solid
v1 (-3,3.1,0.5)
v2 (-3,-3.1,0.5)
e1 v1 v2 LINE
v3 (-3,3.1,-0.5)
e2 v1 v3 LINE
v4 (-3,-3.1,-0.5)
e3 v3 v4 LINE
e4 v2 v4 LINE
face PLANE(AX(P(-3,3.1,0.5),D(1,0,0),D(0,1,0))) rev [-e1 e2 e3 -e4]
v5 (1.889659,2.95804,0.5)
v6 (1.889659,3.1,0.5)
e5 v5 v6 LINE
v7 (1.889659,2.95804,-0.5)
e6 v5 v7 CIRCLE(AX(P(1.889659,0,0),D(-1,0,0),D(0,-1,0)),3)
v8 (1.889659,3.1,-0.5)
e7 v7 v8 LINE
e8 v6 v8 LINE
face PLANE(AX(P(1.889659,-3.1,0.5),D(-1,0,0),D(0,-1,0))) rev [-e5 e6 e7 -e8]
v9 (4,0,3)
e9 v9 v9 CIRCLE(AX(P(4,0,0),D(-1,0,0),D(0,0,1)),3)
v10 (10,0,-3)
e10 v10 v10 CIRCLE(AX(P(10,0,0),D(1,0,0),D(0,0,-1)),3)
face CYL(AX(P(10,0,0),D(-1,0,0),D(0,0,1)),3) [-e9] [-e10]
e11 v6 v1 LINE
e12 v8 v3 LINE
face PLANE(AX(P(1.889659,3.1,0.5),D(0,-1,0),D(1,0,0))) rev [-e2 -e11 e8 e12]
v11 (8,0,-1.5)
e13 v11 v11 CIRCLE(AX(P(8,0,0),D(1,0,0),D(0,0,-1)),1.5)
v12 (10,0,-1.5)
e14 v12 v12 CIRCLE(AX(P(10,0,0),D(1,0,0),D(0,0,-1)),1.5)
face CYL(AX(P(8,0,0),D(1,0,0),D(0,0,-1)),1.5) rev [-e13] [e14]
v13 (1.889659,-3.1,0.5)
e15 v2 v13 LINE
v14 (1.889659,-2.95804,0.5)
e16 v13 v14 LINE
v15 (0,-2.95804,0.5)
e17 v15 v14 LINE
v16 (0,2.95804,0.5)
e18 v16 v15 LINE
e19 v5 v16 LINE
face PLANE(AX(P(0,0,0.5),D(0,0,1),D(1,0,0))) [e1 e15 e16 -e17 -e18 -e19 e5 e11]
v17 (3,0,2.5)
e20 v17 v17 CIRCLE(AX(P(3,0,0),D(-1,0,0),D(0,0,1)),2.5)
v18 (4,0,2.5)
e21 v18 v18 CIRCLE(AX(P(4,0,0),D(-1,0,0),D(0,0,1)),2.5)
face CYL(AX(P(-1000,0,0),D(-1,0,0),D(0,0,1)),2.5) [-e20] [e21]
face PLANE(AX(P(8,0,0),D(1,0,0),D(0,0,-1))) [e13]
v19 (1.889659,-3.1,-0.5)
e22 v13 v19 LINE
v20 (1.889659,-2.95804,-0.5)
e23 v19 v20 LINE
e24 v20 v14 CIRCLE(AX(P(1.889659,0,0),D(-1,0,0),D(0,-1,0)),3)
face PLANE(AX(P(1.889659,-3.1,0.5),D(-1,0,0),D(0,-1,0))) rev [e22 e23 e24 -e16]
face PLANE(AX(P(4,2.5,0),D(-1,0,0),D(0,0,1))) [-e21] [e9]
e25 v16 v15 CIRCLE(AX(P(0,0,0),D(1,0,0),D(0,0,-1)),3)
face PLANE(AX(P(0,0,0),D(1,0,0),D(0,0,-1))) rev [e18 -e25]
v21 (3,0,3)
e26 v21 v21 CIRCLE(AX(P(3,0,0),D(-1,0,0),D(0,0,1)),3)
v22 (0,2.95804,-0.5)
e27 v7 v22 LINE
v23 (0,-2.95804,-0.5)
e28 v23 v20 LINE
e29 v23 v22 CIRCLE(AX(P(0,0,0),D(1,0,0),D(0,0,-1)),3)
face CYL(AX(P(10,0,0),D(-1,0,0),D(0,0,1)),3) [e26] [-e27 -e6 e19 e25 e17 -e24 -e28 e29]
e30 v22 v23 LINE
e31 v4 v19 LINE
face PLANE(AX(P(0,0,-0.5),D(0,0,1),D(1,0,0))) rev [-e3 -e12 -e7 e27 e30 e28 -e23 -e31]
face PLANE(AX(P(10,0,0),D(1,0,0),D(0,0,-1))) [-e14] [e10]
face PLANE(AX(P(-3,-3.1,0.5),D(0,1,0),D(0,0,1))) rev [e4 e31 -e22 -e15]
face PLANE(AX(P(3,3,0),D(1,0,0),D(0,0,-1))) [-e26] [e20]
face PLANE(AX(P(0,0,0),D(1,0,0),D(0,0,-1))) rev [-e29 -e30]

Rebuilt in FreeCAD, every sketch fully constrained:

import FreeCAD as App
import Part
import Sketcher


def add_polygon(sketch, points):
    """Adds a closed chain of lines whose ends are joined by coincident constraints."""
    first, n = sketch.GeometryCount, len(points)
    for a, b in zip(points, points[1:] + points[:1]):
        sketch.addGeometry(Part.LineSegment(App.Vector(*a, 0), App.Vector(*b, 0)), False)
    for i in range(n):
        sketch.addConstraint(Sketcher.Constraint("Coincident", first + i, 2, first + (i + 1) % n, 1))

doc = App.newDocument("Part")
body = doc.addObject("PartDesign::Body", "Body")

sketch1 = body.newObject("Sketcher::SketchObject", "Sketch")
sketch1.AttachmentSupport = (doc.getObject("YZ_Plane"), [""])
sketch1.MapMode = "FlatFace"
sketch1.addGeometry(Part.Circle(App.Vector(0, 0, 0), App.Vector(0, 0, 1), 3), False)
sketch1.addConstraint([
    Sketcher.Constraint("Coincident", 0, 3, -1, 1),
    Sketcher.Constraint("Diameter", 0, 6.0),
])
pad1 = body.newObject("PartDesign::Pad", "Pad")
pad1.Profile = sketch1
pad1.Length = 10

sketch2 = body.newObject("Sketcher::SketchObject", "Sketch001")
sketch2.AttachmentSupport = (doc.getObject("XY_Plane"), [""])
sketch2.MapMode = "FlatFace"
add_polygon(sketch2, [(3, 3), (3, 2.5), (4, 2.5), (4, 3)])
sketch2.addConstraint([
    Sketcher.Constraint("Vertical", 0),
    Sketcher.Constraint("Horizontal", 1),
    Sketcher.Constraint("Vertical", 2),
    Sketcher.Constraint("Horizontal", 3),
    Sketcher.Constraint("DistanceX", 1, 1, 1, 2, 1.0),
    Sketcher.Constraint("DistanceY", 0, 2, 0, 1, 0.5),
    Sketcher.Constraint("DistanceX", -1, 1, 0, 2, 3.0),
    Sketcher.Constraint("DistanceY", -1, 1, 2, 2, 3.0),
])
groove = body.newObject("PartDesign::Groove", "Groove")
groove.Profile = sketch2
groove.ReferenceAxis = (sketch2, ["H_Axis"])
groove.Angle = 360

sketch3 = body.newObject("Sketcher::SketchObject", "Sketch002")
sketch3.AttachmentSupport = (doc.getObject("YZ_Plane"), [""])
sketch3.MapMode = "FlatFace"
sketch3.AttachmentOffset = App.Placement(App.Vector(0, 0, 10), App.Rotation())
sketch3.addGeometry(Part.Circle(App.Vector(0, 0, 0), App.Vector(0, 0, 1), 1.5), False)
sketch3.addConstraint([
    Sketcher.Constraint("Coincident", 0, 3, -1, 1),
    Sketcher.Constraint("Diameter", 0, 3.0),
])
pocket1 = body.newObject("PartDesign::Pocket", "Pocket")
pocket1.Profile = sketch3
pocket1.Length = 2

sketch4 = body.newObject("Sketcher::SketchObject", "Sketch003")
sketch4.AttachmentSupport = (doc.getObject("XY_Plane"), [""])
sketch4.MapMode = "FlatFace"
add_polygon(sketch4, [(-3, 3.1), (-3, -3.1), (1.889659, -3.1), (1.889659, 3.1)])
sketch4.addConstraint([
    Sketcher.Constraint("Vertical", 0),
    Sketcher.Constraint("Horizontal", 1),
    Sketcher.Constraint("Vertical", 2),
    Sketcher.Constraint("Horizontal", 3),
    Sketcher.Constraint("DistanceY", 0, 2, 0, 1, 6.2),
    Sketcher.Constraint("DistanceX", 0, 2, -1, 1, 3.0),
    Sketcher.Constraint("DistanceY", 0, 2, -1, 1, 3.1),
    Sketcher.Constraint("DistanceX", 1, 1, 1, 2, 4.889659),
])
pad2 = body.newObject("PartDesign::Pad", "Pad001")
pad2.Profile = sketch4
pad2.Length = 1
pad2.Midplane = True

doc.recompute()
